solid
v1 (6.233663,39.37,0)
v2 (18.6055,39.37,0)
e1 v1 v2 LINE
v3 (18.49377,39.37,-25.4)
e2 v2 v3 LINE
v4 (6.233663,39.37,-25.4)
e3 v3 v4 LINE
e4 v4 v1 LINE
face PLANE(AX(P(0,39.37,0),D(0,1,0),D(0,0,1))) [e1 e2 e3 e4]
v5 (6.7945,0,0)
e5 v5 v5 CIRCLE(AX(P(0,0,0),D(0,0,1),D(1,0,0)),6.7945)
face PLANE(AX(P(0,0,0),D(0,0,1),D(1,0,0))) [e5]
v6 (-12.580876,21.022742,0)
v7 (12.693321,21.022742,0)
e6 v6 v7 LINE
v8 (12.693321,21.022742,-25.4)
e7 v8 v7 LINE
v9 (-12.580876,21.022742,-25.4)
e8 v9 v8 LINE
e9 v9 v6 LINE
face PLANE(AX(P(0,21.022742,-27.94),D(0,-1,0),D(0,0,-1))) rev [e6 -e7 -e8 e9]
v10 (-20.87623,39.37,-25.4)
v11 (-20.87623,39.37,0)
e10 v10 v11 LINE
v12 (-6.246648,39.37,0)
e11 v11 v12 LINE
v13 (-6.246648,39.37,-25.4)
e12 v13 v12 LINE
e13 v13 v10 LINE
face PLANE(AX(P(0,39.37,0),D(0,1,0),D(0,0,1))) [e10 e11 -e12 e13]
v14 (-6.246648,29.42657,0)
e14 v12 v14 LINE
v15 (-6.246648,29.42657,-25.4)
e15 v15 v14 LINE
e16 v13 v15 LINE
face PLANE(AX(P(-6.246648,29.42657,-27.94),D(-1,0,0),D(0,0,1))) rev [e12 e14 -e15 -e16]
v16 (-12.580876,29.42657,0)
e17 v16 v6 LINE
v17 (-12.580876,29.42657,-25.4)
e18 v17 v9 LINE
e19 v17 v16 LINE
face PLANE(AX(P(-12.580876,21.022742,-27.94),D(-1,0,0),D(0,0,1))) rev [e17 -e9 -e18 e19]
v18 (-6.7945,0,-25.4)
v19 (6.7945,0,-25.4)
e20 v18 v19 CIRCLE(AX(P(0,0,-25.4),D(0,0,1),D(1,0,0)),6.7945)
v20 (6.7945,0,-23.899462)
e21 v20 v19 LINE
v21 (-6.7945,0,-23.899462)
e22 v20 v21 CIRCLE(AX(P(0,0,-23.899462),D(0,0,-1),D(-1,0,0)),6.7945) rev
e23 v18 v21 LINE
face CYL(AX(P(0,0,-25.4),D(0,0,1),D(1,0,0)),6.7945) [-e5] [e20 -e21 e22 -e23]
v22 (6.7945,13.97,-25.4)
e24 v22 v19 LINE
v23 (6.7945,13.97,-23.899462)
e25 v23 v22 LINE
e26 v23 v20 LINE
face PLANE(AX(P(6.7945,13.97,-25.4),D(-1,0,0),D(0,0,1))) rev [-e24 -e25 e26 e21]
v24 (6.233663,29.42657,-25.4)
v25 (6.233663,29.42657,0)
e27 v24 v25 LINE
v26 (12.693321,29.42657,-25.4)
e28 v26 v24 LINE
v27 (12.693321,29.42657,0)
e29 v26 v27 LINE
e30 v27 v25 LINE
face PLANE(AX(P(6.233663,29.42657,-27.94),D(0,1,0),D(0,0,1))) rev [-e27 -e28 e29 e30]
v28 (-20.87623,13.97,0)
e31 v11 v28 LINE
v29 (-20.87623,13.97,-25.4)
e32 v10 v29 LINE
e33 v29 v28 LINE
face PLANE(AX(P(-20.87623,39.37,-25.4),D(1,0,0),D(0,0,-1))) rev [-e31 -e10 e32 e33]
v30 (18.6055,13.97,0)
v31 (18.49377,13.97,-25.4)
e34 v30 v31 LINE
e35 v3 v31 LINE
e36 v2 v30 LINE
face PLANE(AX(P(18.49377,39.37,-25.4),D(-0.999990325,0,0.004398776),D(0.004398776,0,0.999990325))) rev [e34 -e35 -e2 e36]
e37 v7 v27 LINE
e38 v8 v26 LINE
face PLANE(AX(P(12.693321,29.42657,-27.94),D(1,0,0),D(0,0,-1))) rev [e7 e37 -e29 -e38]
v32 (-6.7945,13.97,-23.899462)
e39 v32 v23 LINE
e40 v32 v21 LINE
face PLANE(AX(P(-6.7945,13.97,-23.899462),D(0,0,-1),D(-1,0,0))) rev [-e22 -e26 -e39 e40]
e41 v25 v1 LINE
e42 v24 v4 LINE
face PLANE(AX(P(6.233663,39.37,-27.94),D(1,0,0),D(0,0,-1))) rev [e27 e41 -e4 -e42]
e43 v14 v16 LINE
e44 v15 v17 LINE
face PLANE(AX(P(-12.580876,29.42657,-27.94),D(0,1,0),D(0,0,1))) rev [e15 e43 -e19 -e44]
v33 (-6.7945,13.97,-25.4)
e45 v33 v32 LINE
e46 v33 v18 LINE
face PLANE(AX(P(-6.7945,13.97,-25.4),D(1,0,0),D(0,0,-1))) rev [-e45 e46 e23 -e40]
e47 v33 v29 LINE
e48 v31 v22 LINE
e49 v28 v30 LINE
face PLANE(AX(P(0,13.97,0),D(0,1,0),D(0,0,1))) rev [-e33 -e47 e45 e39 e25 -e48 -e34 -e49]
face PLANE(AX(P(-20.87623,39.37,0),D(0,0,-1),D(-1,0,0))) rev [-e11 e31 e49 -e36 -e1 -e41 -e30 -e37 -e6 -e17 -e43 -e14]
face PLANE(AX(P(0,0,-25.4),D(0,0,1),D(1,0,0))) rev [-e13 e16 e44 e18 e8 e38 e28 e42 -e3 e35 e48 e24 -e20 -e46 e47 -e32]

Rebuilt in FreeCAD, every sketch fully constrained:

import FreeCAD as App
import Part
import Sketcher
Q = App.Units.Quantity

doc = App.newDocument("Part")
params = doc.addObject("Spreadsheet::Sheet", "Params")
for row, (alias, value) in enumerate([
    ("sketch1_diameter", "0.535 in"),
    ("pad1_length", "1 in"),
    ("sketch2_width", "0.535 in"),
    ("pad2_length", "0.55 in"),
    ("sketch3_height", "1 in"),
    ("sketch3_width", "1.55 in"),
    ("pad3_length", "1 in"),
    ("pocket1_length", "1.1 in"),
], start=1):
    params.set(f"A{row}", alias)
    params.set(f"B{row}", "=" + value)
    params.setAlias(f"B{row}", alias)

body = doc.addObject("PartDesign::Body", "Body")

sketch1 = doc.addObject("Sketcher::SketchObject", "Sketch")
body.addObject(sketch1)
sketch1.AttachmentSupport = (doc.XY_Plane, [""])
sketch1.MapMode = "FlatFace"
sketch1.addGeometry(Part.Circle(App.Vector(0, 0, 0), App.Vector(0, 0, 1), 7), False)
sketch1.addConstraint([
    Sketcher.Constraint("Coincident", 0, 3, -1, 1),
    Sketcher.Constraint("Diameter", 0, Q("0.535 in")),
])
sketch1.setExpression("Constraints[1]", "Params.sketch1_diameter")
pad1 = doc.addObject("PartDesign::Pad", "Pad")
body.addObject(pad1)
pad1.Profile = sketch1
pad1.setExpression("Length", "Params.pad1_length")
pad1.Reversed = True

sketch2 = doc.addObject("Sketcher::SketchObject", "Sketch001")
body.addObject(sketch2)
sketch2.AttachmentSupport = (doc.XZ_Plane, [""])
sketch2.MapMode = "FlatFace"
sketch2.addGeometry([
    Part.LineSegment(App.Vector(-6.8, -25.4, 0), App.Vector(-6.8, -23.9, 0)),
    Part.LineSegment(App.Vector(-6.8, -23.9, 0), App.Vector(6.8, -23.9, 0)),
    Part.LineSegment(App.Vector(6.8, -23.9, 0), App.Vector(6.8, -25.4, 0)),
    Part.LineSegment(App.Vector(6.8, -25.4, 0), App.Vector(-6.8, -25.4, 0)),
], False)
sketch2.addConstraint([
    Sketcher.Constraint("Coincident", 0, 2, 1, 1),
    Sketcher.Constraint("Coincident", 1, 2, 2, 1),
    Sketcher.Constraint("Coincident", 2, 2, 3, 1),
    Sketcher.Constraint("Coincident", 3, 2, 0, 1),
    Sketcher.Constraint("Vertical", 0),
    Sketcher.Constraint("Horizontal", 1),
    Sketcher.Constraint("Vertical", 2),
    Sketcher.Constraint("Horizontal", 3),
    Sketcher.Constraint("DistanceY", 2, 2, -1, 1, Q("1 in")),
    Sketcher.Constraint("DistanceX", 1, 1, 1, 2, Q("0.535 in")),
    Sketcher.Constraint("DistanceX", 0, 2, -1, 1, Q("0.2675 in")),
    Sketcher.Constraint("DistanceY", 0, 1, 0, 2, Q("1.500538 mm")),
])
sketch2.setExpression("Constraints[9]", "Params.sketch2_width")
pad2 = doc.addObject("PartDesign::Pad", "Pad001")
body.addObject(pad2)
pad2.Profile = sketch2
pad2.setExpression("Length", "Params.pad2_length")
pad2.Reversed = True

sketch3 = doc.addObject("Sketcher::SketchObject", "Sketch002")
body.addObject(sketch3)
sketch3.AttachmentSupport = (doc.XZ_Plane, [""])
sketch3.MapMode = "FlatFace"
sketch3.AttachmentOffset = App.Placement(App.Vector(0, 0, -0.55 * 25.4), App.Rotation())
sketch3.addGeometry([
    Part.LineSegment(App.Vector(18, -25, 0), App.Vector(-21, -25, 0)),
    Part.LineSegment(App.Vector(-21, -25, 0), App.Vector(-21, 0, 0)),
    Part.LineSegment(App.Vector(-21, 0, 0), App.Vector(19, 0, 0)),
    Part.LineSegment(App.Vector(19, 0, 0), App.Vector(18, -25, 0)),
], False)
sketch3.addConstraint([
    Sketcher.Constraint("Coincident", 0, 2, 1, 1),
    Sketcher.Constraint("Coincident", 1, 2, 2, 1),
    Sketcher.Constraint("Coincident", 2, 2, 3, 1),
    Sketcher.Constraint("Coincident", 3, 2, 0, 1),
    Sketcher.Constraint("Horizontal", 0),
    Sketcher.Constraint("Vertical", 1),
    Sketcher.Constraint("Horizontal", 2),
    Sketcher.Constraint("PointOnObject", 1, 2, -1),
    Sketcher.Constraint("DistanceY", 1, 1, 1, 2, Q("1 in")),
    Sketcher.Constraint("DistanceX", 0, 2, 0, 1, Q("1.55 in")),
    Sketcher.Constraint("DistanceX", -1, 1, 2, 2, Q("0.7325 in")),
    Sketcher.Constraint("DistanceX", 2, 1, 2, 2, Q("39.48173 mm")),
])
sketch3.setExpression("Constraints[8]", "Params.sketch3_height")
sketch3.setExpression("Constraints[9]", "Params.sketch3_width")
pad3 = doc.addObject("PartDesign::Pad", "Pad002")
body.addObject(pad3)
pad3.Profile = sketch3
pad3.setExpression("Length", "Params.pad3_length")
pad3.Reversed = True

sketch4 = doc.addObject("Sketcher::SketchObject", "Sketch003")
body.addObject(sketch4)
sketch4.AttachmentSupport = (doc.XY_Plane, [""])
sketch4.MapMode = "FlatFace"
sketch4.addGeometry([
    Part.LineSegment(App.Vector(-13, 21, 0), App.Vector(13, 21, 0)),
    Part.LineSegment(App.Vector(13, 21, 0), App.Vector(13, 29, 0)),
    Part.LineSegment(App.Vector(13, 29, 0), App.Vector(6, 29, 0)),
    Part.LineSegment(App.Vector(6, 29, 0), App.Vector(6, 39, 0)),
    Part.LineSegment(App.Vector(6, 39, 0), App.Vector(-6, 39, 0)),
    Part.LineSegment(App.Vector(-6, 39, 0), App.Vector(-6, 29, 0)),
    Part.LineSegment(App.Vector(-6, 29, 0), App.Vector(-13, 29, 0)),
    Part.LineSegment(App.Vector(-13, 29, 0), App.Vector(-13, 21, 0)),
], False)
sketch4.addConstraint([
    Sketcher.Constraint("Coincident", 0, 2, 1, 1),
    Sketcher.Constraint("Coincident", 1, 2, 2, 1),
    Sketcher.Constraint("Coincident", 2, 2, 3, 1),
    Sketcher.Constraint("Coincident", 3, 2, 4, 1),
    Sketcher.Constraint("Coincident", 4, 2, 5, 1),
    Sketcher.Constraint("Coincident", 5, 2, 6, 1),
    Sketcher.Constraint("Coincident", 6, 2, 7, 1),
    Sketcher.Constraint("Coincident", 7, 2, 0, 1),
    Sketcher.Constraint("Horizontal", 0),
    Sketcher.Constraint("Vertical", 1),
    Sketcher.Constraint("Horizontal", 2),
    Sketcher.Constraint("Vertical", 3),
    Sketcher.Constraint("Horizontal", 4),
    Sketcher.Constraint("Vertical", 5),
    Sketcher.Constraint("Horizontal", 6),
    Sketcher.Constraint("Vertical", 7),
    Sketcher.Constraint("Horizontal", 2, 2, 5, 2),
    Sketcher.Constraint("DistanceY", -1, 1, 3, 2, Q("1.55 in")),
    Sketcher.Constraint("DistanceX", 2, 2, 2, 1, Q("6.459658 mm")),
    Sketcher.Constraint("DistanceX", 4, 2, 4, 1, Q("12.480311 mm")),
    Sketcher.Constraint("DistanceX", 6, 2, 6, 1, Q("6.334228 mm")),
    Sketcher.Constraint("DistanceY", 3, 1, 3, 2, Q("9.94343 mm")),
    Sketcher.Constraint("DistanceY", 1, 1, 1, 2, Q("8.403828 mm")),
    Sketcher.Constraint("DistanceX", -1, 1, 0, 2, Q("12.693321 mm")),
])
pocket1 = doc.addObject("PartDesign::Pocket", "Pocket")
body.addObject(pocket1)
pocket1.Profile = sketch4
pocket1.setExpression("Length", "Params.pocket1_length")

doc.recompute()
